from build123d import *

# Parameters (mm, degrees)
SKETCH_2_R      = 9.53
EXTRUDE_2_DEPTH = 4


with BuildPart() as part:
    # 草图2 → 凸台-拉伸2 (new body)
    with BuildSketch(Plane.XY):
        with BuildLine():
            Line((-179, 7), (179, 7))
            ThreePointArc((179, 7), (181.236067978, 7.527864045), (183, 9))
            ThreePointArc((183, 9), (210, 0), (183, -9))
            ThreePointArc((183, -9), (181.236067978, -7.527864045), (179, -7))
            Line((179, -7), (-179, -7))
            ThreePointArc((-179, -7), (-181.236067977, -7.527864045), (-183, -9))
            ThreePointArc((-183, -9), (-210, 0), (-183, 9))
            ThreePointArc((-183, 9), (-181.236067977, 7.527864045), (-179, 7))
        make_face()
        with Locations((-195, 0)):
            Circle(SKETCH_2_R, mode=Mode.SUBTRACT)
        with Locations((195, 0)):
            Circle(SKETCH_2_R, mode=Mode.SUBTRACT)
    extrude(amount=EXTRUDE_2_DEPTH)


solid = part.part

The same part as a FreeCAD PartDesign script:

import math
import FreeCAD as App
import Part
import Sketcher

V = App.Vector

doc = App.newDocument("Part")
body = doc.addObject("PartDesign::Body", "Body")

# Sketch on XY plane
sketch1 = body.newObject("Sketcher::SketchObject", "Sketch")
sketch1.AttachmentSupport = (doc.getObject("XY_Plane"), [""])
sketch1.MapMode = "FlatFace"
sketch1.addGeometry([
    Part.LineSegment(V(179, 7, 0), V(-179, 7, 0)),  # 0
    Part.ArcOfCircle(Part.Circle(V(-179, 12, 0), V(0, 0, 1), 5), math.radians(-143), math.radians(-90)),  # 1
    Part.ArcOfCircle(Part.Circle(V(-195, 0, 0), V(0, 0, 1), 15), math.radians(37), math.radians(323)),  # 2
    Part.ArcOfCircle(Part.Circle(V(-179, -12, 0), V(0, 0, 1), 5), math.radians(90), math.radians(143)),  # 3
    Part.LineSegment(V(-179, -7, 0), V(179, -7, 0)),  # 4
    Part.ArcOfCircle(Part.Circle(V(179, -12, 0), V(0, 0, 1), 5), math.radians(37), math.radians(90)),  # 5
    Part.ArcOfCircle(Part.Circle(V(195, 0, 0), V(0, 0, 1), 15), math.radians(-143), math.radians(143)),  # 6
    Part.ArcOfCircle(Part.Circle(V(179, 12, 0), V(0, 0, 1), 5), math.radians(-90), math.radians(-37)),  # 7
    Part.Circle(V(195, 0, 0), V(0, 0, 1), 9.5),  # 8
    Part.Circle(V(-195, 0, 0), V(0, 0, 1), 9.5),  # 9
], False)
sketch1.addConstraint([
    Sketcher.Constraint("Tangent", 0, 2, 1, 2),
    Sketcher.Constraint("Tangent", 1, 1, 2, 1),
    Sketcher.Constraint("Tangent", 2, 2, 3, 2),
    Sketcher.Constraint("Tangent", 3, 1, 4, 1),
    Sketcher.Constraint("Tangent", 4, 2, 5, 2),
    Sketcher.Constraint("Tangent", 5, 1, 6, 1),
    Sketcher.Constraint("Tangent", 6, 2, 7, 2),
    Sketcher.Constraint("Tangent", 7, 1, 0, 1),
    Sketcher.Constraint("Horizontal", 0),
    Sketcher.Constraint("Horizontal", 4),
    Sketcher.Constraint("Coincident", 8, 3, 6, 3),
    Sketcher.Constraint("Coincident", 9, 3, 2, 3),
    Sketcher.Constraint("Equal", 1, 3),
    Sketcher.Constraint("Equal", 3, 5),
    Sketcher.Constraint("Equal", 2, 6),
    Sketcher.Constraint("Equal", 5, 7),
    Sketcher.Constraint("Equal", 8, 9),
    Sketcher.Constraint("Symmetric", 1, 3, 5, 3, -1, 1),
    Sketcher.Constraint("Symmetric", 2, 3, 6, 3, -2),
    Sketcher.Constraint("Radius", 1, 5.0),
    Sketcher.Constraint("Radius", 2, 15.0),
    Sketcher.Constraint("Diameter", 8, 19.06),
    Sketcher.Constraint("DistanceX", 0, 2, 0, 1, 358.0),
    Sketcher.Constraint("DistanceY", -1, 1, 1, 3, 12.0),
])
pad1 = body.newObject("PartDesign::Pad", "Pad")
pad1.Profile = sketch1
pad1.Length = 4

doc.recompute()
